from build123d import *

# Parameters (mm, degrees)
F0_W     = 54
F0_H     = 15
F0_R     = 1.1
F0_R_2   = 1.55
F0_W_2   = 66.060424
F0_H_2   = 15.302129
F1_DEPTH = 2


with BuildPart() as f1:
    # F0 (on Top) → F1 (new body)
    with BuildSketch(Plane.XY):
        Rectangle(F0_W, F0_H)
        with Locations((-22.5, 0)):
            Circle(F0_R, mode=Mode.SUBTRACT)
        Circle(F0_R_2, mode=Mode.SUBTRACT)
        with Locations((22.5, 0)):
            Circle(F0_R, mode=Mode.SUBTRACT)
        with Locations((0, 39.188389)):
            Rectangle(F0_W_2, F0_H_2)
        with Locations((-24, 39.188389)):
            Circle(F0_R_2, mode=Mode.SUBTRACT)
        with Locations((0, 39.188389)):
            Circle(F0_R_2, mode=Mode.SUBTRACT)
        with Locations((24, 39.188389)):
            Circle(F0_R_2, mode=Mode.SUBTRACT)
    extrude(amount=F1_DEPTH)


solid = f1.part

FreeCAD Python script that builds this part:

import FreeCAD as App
import Part
import Sketcher

V = App.Vector


def add_polygon(sketch, points):
    """Adds a closed chain of lines whose ends are joined by coincident constraints."""
    first, n = sketch.GeometryCount, len(points)
    for a, b in zip(points, points[1:] + points[:1]):
        sketch.addGeometry(Part.LineSegment(App.Vector(*a, 0), App.Vector(*b, 0)), False)
    for i in range(n):
        sketch.addConstraint(Sketcher.Constraint("Coincident", first + i, 2, first + (i + 1) % n, 1))

doc = App.newDocument("Part")
body = doc.addObject("PartDesign::Body", "Body")
body.AllowCompound = True

sketch1 = body.newObject("Sketcher::SketchObject", "Sketch")
sketch1.AttachmentSupport = (doc.getObject("XY_Plane"), [""])
sketch1.MapMode = "FlatFace"
add_polygon(sketch1, [(-27, 7.5), (-27, -7.5), (27, -7.5), (27, 7.5)])
sketch1.addGeometry(Part.Circle(V(-22.5, 0, 0), V(0, 0, 1), 1.1), False)
sketch1.addGeometry(Part.Circle(V(0, 0, 0), V(0, 0, 1), 1.6), False)
sketch1.addGeometry(Part.Circle(V(22.5, 0, 0), V(0, 0, 1), 1.1), False)
add_polygon(sketch1, [(-33, 46.8), (-33, 31.5), (33, 31.5), (33, 46.8)])
sketch1.addGeometry(Part.Circle(V(-24, 39.2, 0), V(0, 0, 1), 1.6), False)
sketch1.addGeometry(Part.Circle(V(0, 39.2, 0), V(0, 0, 1), 1.6), False)
sketch1.addGeometry(Part.Circle(V(24, 39.2, 0), V(0, 0, 1), 1.6), False)
sketch1.addConstraint([
    Sketcher.Constraint("Vertical", 0),
    Sketcher.Constraint("Horizontal", 1),
    Sketcher.Constraint("Vertical", 2),
    Sketcher.Constraint("Horizontal", 3),
    Sketcher.Constraint("Vertical", 7),
    Sketcher.Constraint("Horizontal", 8),
    Sketcher.Constraint("Vertical", 9),
    Sketcher.Constraint("Horizontal", 10),
    Sketcher.Constraint("Coincident", 5, 3, -1, 1),
    Sketcher.Constraint("Equal", 4, 6),
    Sketcher.Constraint("Equal", 5, 11),
    Sketcher.Constraint("Equal", 11, 12),
    Sketcher.Constraint("Equal", 12, 13),
    Sketcher.Constraint("Symmetric", 4, 3, 6, 3, -1, 1),
    Sketcher.Constraint("Symmetric", 0, 2, 2, 2, -1, 1),
    Sketcher.Constraint("Symmetric", 11, 3, 13, 3, -2),
    Sketcher.Constraint("PointOnObject", 4, 3, -1),
    Sketcher.Constraint("PointOnObject", 12, 3, -2),
    Sketcher.Constraint("Horizontal", 11, 3, 12, 3),
    Sketcher.Constraint("Diameter", 4, 2.2),
    Sketcher.Constraint("Diameter", 5, 3.1),
    Sketcher.Constraint("DistanceX", 1, 1, 1, 2, 54.0),
    Sketcher.Constraint("DistanceY", 0, 2, 0, 1, 15.0),
    Sketcher.Constraint("DistanceX", 11, 3, -1, 1, 24.0),
    Sketcher.Constraint("DistanceX", 4, 3, 6, 3, 45.0),
    Sketcher.Constraint("DistanceY", 7, 2, 7, 1, 15.302129),
    Sketcher.Constraint("DistanceX", 8, 1, 8, 2, 66.060424),
    Sketcher.Constraint("DistanceY", -1, 1, 11, 3, 39.188389),
    Sketcher.Constraint("DistanceX", 7, 2, 11, 3, 9.030212),
    Sketcher.Constraint("DistanceY", -1, 1, 7, 2, 31.537325),
])
pad1 = body.newObject("PartDesign::Pad", "Pad")
pad1.Profile = sketch1
pad1.Length = 2

doc.recompute()
